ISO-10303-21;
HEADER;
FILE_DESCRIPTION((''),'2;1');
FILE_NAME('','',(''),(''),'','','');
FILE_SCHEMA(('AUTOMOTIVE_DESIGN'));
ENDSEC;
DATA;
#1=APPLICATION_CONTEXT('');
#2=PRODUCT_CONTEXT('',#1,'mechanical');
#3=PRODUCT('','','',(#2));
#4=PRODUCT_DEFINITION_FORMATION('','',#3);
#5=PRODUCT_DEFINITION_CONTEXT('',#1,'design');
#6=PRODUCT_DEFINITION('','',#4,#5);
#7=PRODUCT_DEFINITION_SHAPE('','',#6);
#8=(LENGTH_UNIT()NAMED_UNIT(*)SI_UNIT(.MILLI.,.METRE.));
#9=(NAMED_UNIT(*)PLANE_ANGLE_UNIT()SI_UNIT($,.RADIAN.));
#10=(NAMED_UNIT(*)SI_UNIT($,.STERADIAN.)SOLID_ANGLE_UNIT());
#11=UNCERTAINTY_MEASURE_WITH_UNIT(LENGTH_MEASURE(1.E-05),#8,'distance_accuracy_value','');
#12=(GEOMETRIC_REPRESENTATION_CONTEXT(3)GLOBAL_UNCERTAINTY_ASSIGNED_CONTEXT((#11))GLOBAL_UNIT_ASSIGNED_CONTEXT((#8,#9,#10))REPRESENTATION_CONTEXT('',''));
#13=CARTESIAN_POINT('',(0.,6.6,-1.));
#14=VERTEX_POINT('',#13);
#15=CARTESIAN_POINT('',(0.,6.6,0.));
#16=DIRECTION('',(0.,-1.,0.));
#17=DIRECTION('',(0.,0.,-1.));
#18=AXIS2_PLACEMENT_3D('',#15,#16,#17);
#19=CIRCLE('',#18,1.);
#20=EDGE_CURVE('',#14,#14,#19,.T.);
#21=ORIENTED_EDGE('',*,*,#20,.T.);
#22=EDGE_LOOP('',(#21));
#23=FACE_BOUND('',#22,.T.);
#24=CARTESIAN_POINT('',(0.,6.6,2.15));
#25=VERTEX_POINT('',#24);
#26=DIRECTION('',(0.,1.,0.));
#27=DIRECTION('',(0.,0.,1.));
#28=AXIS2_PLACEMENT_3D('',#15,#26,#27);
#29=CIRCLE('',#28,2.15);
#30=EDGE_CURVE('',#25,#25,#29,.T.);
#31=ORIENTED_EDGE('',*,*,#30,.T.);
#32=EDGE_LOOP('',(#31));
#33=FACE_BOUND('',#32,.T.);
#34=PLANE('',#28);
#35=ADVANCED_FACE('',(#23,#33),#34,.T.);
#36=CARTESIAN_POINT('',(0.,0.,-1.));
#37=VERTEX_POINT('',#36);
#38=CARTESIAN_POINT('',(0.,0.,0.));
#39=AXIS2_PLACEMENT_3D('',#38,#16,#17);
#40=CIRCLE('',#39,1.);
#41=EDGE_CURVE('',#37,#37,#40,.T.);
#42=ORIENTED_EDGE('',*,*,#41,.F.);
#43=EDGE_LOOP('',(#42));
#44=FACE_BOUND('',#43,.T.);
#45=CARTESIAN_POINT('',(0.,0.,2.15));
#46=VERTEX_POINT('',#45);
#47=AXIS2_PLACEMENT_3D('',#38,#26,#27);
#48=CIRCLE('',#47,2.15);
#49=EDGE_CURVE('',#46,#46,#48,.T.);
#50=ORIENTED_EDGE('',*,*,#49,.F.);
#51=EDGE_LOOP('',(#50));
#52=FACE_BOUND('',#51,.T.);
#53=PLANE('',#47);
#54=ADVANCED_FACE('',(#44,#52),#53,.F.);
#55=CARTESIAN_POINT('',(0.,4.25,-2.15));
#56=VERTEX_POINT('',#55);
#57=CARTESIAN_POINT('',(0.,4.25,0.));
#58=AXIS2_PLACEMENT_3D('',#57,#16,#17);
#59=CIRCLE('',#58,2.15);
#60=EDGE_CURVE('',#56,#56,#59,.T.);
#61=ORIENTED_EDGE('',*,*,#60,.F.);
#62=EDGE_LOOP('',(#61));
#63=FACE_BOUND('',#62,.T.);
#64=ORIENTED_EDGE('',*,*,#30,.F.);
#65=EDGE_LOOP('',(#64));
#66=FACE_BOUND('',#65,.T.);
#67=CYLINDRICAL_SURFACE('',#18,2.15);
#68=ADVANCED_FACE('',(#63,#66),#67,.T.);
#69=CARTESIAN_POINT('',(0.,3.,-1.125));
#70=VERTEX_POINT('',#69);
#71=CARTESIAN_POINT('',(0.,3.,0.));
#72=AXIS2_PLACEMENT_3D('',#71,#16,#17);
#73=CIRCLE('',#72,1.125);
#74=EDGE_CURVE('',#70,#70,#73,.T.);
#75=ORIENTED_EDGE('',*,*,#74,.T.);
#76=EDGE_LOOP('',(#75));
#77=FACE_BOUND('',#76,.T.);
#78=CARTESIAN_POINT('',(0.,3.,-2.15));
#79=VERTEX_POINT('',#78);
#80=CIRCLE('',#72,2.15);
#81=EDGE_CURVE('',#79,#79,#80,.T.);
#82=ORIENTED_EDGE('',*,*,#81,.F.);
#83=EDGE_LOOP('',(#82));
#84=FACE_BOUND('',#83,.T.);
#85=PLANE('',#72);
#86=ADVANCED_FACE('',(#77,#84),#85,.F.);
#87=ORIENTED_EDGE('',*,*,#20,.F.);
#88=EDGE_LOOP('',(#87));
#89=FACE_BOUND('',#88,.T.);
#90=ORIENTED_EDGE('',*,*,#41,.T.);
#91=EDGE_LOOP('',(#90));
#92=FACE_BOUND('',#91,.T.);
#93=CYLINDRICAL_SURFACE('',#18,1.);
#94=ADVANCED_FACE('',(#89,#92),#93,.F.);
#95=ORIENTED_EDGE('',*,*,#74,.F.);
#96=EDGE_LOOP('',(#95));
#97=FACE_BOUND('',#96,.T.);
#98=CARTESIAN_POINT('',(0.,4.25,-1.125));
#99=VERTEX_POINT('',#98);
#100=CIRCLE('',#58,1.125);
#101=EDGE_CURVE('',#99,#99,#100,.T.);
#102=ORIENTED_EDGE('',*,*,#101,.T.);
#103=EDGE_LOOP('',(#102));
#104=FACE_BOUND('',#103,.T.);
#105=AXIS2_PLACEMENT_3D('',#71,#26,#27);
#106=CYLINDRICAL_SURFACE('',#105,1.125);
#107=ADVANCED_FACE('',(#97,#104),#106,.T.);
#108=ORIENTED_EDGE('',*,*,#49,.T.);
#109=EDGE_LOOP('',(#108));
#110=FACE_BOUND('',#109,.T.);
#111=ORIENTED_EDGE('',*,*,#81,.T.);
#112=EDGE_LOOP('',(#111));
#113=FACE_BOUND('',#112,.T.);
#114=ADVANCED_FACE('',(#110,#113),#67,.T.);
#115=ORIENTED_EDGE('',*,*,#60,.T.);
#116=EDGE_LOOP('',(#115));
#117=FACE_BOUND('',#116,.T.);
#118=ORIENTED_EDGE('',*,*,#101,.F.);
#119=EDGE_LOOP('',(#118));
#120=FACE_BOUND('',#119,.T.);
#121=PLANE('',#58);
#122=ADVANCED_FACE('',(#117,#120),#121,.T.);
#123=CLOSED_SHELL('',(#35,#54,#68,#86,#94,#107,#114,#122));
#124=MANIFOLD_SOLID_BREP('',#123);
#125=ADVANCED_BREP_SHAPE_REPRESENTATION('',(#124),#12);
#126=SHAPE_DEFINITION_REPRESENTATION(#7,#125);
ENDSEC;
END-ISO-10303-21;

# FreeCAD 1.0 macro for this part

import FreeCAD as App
import Part
import Sketcher
Q = App.Units.Quantity

doc = App.newDocument("Part")
params = doc.addObject("Spreadsheet::Sheet", "Params")
for row, (alias, value) in enumerate([
    ("sketch1_diameter", "4.3 mm"),
    ("pad1_length", "6.6 mm"),
    ("sketch2_diameter", "2 mm"),
    ("sketch3_diameter", "4.3 mm"),
    ("sketch3_diameter2", "2.25 mm"),
    ("pocket2_length", "1.25 mm"),
], start=1):
    params.set(f"A{row}", alias)
    params.set(f"B{row}", "=" + value)
    params.setAlias(f"B{row}", alias)

body = doc.addObject("PartDesign::Body", "Body")

# Sketch on XZ plane
sketch1 = body.newObject("Sketcher::SketchObject", "Sketch")
sketch1.AttachmentSupport = (doc.getObject("XZ_Plane"), [""])
sketch1.MapMode = "FlatFace"
sketch1.addGeometry(Part.Circle(App.Vector(0, 0, 0), App.Vector(0, 0, 1), 2.15), False)
sketch1.addConstraint([
    Sketcher.Constraint("Coincident", 0, 3, -1, 1),
    Sketcher.Constraint("Diameter", 0, Q("4.3 mm")),
])
sketch1.setExpression("Constraints[1]", "Params.sketch1_diameter")
pad1 = body.newObject("PartDesign::Pad", "Pad")
pad1.Profile = sketch1
pad1.setExpression("Length", "Params.pad1_length")
pad1.Reversed = True

# Sketch on XZ plane
sketch2 = body.newObject("Sketcher::SketchObject", "Sketch001")
sketch2.AttachmentSupport = (doc.getObject("XZ_Plane"), [""])
sketch2.MapMode = "FlatFace"
sketch2.addGeometry(Part.Circle(App.Vector(0, 0, 0), App.Vector(0, 0, 1), 1), False)
sketch2.addConstraint([
    Sketcher.Constraint("Coincident", 0, 3, -1, 1),
    Sketcher.Constraint("Diameter", 0, Q("2 mm")),
])
sketch2.setExpression("Constraints[1]", "Params.sketch2_diameter")
pocket1 = body.newObject("PartDesign::Pocket", "Pocket")
pocket1.Profile = sketch2
pocket1.Type = "ThroughAll"

# Sketch on XZ plane
sketch3 = body.newObject("Sketcher::SketchObject", "Sketch002")
sketch3.AttachmentSupport = (doc.getObject("XZ_Plane"), [""])
sketch3.MapMode = "FlatFace"
sketch3.AttachmentOffset = App.Placement(App.Vector(0, 0, -4.25), App.Rotation())
sketch3.addGeometry([
    Part.Circle(App.Vector(0, 0, 0), App.Vector(0, 0, 1), 2.15),
    Part.Circle(App.Vector(0, 0, 0), App.Vector(0, 0, 1), 1.125),
], False)
sketch3.addConstraint([
    Sketcher.Constraint("Coincident", 0, 3, -1, 1),
    Sketcher.Constraint("Coincident", 1, 3, -1, 1),
    Sketcher.Constraint("Diameter", 0, Q("4.3 mm")),
    Sketcher.Constraint("Diameter", 1, Q("2.25 mm")),
])
sketch3.setExpression("Constraints[2]", "Params.sketch3_diameter")
sketch3.setExpression("Constraints[3]", "Params.sketch3_diameter2")
pocket2 = body.newObject("PartDesign::Pocket", "Pocket001")
pocket2.Profile = sketch3
pocket2.setExpression("Length", "Params.pocket2_length")
pocket2.Reversed = True

doc.recompute()
